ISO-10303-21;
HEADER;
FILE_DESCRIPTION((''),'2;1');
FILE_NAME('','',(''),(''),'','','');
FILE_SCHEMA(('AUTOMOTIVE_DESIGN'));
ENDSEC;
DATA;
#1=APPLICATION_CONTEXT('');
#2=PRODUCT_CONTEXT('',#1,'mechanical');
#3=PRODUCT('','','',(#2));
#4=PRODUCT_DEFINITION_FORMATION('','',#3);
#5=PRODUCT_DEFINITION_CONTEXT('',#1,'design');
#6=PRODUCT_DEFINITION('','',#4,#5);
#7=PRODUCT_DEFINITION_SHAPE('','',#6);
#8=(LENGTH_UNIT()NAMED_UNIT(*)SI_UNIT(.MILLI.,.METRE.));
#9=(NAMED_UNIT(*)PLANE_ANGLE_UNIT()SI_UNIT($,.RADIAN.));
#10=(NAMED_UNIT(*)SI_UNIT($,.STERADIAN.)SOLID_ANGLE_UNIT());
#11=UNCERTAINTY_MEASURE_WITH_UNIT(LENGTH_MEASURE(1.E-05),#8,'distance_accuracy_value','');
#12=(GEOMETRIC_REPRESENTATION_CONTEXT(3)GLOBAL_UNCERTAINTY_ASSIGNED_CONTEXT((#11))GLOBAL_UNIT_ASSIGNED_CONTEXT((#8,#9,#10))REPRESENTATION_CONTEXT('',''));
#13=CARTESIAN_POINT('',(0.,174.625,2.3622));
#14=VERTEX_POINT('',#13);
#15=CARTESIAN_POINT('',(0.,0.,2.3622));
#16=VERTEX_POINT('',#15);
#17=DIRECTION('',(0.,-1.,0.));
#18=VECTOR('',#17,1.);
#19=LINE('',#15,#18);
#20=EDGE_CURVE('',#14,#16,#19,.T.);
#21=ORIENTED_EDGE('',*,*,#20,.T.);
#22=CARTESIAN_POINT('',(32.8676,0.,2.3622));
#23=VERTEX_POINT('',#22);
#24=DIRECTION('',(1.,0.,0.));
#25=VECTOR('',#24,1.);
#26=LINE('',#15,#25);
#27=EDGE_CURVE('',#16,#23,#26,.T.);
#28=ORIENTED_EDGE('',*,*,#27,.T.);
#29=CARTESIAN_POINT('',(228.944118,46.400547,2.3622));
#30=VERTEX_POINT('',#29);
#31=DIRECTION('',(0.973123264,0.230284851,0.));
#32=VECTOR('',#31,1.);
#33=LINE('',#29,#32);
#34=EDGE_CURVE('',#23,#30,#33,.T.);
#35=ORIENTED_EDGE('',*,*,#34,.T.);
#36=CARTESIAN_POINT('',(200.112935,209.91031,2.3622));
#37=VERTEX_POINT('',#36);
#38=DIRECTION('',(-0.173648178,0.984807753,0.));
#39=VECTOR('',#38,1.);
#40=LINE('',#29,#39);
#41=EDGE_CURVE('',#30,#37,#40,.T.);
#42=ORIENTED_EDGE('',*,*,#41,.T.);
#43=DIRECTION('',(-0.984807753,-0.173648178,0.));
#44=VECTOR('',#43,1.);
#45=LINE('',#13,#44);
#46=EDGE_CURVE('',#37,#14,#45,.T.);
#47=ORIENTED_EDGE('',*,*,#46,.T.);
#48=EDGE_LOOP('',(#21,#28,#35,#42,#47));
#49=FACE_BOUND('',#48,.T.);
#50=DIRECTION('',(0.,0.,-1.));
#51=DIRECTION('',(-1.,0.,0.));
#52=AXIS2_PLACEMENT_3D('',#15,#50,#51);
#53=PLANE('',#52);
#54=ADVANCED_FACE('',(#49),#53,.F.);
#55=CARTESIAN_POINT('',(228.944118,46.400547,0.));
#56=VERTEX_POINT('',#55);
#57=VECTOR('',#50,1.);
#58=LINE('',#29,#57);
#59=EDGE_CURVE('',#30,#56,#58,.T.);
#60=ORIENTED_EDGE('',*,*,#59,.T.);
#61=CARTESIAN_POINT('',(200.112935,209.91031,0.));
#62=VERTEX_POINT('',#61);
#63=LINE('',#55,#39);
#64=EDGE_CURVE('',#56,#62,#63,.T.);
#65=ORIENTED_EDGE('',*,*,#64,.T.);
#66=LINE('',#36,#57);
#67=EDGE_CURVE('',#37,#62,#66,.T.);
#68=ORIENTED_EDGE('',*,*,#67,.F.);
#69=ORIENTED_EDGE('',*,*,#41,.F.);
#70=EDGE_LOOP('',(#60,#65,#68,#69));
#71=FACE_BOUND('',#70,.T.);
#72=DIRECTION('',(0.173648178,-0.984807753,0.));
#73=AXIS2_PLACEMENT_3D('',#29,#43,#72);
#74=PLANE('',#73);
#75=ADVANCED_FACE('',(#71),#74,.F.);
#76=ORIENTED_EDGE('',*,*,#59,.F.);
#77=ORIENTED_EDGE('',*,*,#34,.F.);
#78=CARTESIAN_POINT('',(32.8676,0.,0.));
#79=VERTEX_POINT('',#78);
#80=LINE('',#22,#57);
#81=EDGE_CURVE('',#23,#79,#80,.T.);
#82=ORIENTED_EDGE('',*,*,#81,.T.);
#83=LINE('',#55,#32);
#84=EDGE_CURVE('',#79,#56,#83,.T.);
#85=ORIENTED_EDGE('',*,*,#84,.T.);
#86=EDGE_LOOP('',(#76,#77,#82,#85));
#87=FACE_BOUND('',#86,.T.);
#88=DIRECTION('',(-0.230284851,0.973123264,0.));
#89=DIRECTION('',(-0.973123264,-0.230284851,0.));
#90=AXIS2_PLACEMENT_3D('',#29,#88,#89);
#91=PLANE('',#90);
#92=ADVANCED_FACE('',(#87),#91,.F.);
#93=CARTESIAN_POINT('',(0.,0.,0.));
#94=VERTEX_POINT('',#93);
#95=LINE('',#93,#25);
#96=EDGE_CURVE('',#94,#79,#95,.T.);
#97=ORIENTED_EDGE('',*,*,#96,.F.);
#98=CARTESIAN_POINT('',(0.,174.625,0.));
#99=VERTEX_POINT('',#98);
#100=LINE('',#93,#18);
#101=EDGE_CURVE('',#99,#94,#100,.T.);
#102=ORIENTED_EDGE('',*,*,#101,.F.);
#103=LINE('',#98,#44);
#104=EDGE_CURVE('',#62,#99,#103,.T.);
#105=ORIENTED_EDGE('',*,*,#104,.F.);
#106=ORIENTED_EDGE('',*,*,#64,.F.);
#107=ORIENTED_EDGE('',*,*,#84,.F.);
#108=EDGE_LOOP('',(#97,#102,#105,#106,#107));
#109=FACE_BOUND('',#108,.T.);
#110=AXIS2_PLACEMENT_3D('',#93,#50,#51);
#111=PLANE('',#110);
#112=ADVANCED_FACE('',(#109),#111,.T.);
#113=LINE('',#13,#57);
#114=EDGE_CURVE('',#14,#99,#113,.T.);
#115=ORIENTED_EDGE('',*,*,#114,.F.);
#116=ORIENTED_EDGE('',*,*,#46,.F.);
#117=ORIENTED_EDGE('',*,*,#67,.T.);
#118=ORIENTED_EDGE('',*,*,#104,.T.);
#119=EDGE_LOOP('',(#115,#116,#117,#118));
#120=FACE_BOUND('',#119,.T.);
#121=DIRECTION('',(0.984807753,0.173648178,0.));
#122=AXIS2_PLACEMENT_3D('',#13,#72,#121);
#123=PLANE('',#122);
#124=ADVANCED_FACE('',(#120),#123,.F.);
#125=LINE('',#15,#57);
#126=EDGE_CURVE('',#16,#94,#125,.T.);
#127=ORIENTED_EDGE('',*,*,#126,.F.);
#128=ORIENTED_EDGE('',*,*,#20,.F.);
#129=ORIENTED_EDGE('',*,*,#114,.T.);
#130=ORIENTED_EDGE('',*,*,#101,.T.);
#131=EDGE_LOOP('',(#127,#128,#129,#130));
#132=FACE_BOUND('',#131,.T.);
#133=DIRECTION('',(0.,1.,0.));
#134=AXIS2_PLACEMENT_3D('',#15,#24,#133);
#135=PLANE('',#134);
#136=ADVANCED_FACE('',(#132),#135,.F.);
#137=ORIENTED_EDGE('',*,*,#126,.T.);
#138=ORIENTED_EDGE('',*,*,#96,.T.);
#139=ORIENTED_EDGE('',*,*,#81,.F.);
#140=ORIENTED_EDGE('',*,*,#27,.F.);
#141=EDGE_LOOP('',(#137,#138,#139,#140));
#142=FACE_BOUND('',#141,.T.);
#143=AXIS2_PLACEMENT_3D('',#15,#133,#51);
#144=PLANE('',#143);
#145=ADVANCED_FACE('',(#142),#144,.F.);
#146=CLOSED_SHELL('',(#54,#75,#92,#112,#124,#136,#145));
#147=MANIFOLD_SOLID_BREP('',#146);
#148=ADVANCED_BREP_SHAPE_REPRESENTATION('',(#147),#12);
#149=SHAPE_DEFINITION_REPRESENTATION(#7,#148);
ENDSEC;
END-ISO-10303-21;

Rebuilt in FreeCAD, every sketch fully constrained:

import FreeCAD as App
import Part
import Sketcher
from FreeCAD import Vector
Q = App.Units.Quantity


def add_polygon(sketch, points):
    """Adds a closed chain of lines whose ends are joined by coincident constraints."""
    first, n = sketch.GeometryCount, len(points)
    for a, b in zip(points, points[1:] + points[:1]):
        sketch.addGeometry(Part.LineSegment(App.Vector(*a, 0), App.Vector(*b, 0)), False)
    for i in range(n):
        sketch.addConstraint(Sketcher.Constraint("Coincident", first + i, 2, first + (i + 1) % n, 1))

doc = App.newDocument("Part")
body = doc.addObject("PartDesign::Body", "Body")

# Sketch on XY plane
sketch1 = body.newObject("Sketcher::SketchObject", "Sketch")
sketch1.AttachmentSupport = (doc.getObject("XY_Plane"), [""])
sketch1.MapMode = "FlatFace"
add_polygon(sketch1, [(33, 0), (229, 46), (200, 210), (0, 175), (0, 0)])  # lines 0-4
sketch1.addConstraint(Sketcher.Constraint("Vertical", 3))
sketch1.addConstraint(Sketcher.Constraint("Horizontal", 4))
sketch1.addConstraint(Sketcher.Constraint("Coincident", 3, 2, -1, 1))
sketch1.addConstraint(Sketcher.Constraint("Perpendicular", 1, 2))
sketch1.addConstraint(Sketcher.Constraint("Distance", 2, Q("8 in")))
sketch1.addConstraint(Sketcher.Constraint("Angle", 1, Q("100 deg")))
sketch1.addConstraint(Sketcher.Constraint("DistanceX", 4, 1, 4, 2, Q("1.294 in")))
sketch1.addConstraint(Sketcher.Constraint("DistanceY", 3, 2, 3, 1, Q("6.875 in")))
sketch1.addConstraint(Sketcher.Constraint("DistanceX", -1, 1, 0, 2, Q("228.944118 mm")))
pad1 = body.newObject("PartDesign::Pad", "Pad")
pad1.Profile = sketch1
pad1.Length = Q("0.093 in")

doc.recompute()
